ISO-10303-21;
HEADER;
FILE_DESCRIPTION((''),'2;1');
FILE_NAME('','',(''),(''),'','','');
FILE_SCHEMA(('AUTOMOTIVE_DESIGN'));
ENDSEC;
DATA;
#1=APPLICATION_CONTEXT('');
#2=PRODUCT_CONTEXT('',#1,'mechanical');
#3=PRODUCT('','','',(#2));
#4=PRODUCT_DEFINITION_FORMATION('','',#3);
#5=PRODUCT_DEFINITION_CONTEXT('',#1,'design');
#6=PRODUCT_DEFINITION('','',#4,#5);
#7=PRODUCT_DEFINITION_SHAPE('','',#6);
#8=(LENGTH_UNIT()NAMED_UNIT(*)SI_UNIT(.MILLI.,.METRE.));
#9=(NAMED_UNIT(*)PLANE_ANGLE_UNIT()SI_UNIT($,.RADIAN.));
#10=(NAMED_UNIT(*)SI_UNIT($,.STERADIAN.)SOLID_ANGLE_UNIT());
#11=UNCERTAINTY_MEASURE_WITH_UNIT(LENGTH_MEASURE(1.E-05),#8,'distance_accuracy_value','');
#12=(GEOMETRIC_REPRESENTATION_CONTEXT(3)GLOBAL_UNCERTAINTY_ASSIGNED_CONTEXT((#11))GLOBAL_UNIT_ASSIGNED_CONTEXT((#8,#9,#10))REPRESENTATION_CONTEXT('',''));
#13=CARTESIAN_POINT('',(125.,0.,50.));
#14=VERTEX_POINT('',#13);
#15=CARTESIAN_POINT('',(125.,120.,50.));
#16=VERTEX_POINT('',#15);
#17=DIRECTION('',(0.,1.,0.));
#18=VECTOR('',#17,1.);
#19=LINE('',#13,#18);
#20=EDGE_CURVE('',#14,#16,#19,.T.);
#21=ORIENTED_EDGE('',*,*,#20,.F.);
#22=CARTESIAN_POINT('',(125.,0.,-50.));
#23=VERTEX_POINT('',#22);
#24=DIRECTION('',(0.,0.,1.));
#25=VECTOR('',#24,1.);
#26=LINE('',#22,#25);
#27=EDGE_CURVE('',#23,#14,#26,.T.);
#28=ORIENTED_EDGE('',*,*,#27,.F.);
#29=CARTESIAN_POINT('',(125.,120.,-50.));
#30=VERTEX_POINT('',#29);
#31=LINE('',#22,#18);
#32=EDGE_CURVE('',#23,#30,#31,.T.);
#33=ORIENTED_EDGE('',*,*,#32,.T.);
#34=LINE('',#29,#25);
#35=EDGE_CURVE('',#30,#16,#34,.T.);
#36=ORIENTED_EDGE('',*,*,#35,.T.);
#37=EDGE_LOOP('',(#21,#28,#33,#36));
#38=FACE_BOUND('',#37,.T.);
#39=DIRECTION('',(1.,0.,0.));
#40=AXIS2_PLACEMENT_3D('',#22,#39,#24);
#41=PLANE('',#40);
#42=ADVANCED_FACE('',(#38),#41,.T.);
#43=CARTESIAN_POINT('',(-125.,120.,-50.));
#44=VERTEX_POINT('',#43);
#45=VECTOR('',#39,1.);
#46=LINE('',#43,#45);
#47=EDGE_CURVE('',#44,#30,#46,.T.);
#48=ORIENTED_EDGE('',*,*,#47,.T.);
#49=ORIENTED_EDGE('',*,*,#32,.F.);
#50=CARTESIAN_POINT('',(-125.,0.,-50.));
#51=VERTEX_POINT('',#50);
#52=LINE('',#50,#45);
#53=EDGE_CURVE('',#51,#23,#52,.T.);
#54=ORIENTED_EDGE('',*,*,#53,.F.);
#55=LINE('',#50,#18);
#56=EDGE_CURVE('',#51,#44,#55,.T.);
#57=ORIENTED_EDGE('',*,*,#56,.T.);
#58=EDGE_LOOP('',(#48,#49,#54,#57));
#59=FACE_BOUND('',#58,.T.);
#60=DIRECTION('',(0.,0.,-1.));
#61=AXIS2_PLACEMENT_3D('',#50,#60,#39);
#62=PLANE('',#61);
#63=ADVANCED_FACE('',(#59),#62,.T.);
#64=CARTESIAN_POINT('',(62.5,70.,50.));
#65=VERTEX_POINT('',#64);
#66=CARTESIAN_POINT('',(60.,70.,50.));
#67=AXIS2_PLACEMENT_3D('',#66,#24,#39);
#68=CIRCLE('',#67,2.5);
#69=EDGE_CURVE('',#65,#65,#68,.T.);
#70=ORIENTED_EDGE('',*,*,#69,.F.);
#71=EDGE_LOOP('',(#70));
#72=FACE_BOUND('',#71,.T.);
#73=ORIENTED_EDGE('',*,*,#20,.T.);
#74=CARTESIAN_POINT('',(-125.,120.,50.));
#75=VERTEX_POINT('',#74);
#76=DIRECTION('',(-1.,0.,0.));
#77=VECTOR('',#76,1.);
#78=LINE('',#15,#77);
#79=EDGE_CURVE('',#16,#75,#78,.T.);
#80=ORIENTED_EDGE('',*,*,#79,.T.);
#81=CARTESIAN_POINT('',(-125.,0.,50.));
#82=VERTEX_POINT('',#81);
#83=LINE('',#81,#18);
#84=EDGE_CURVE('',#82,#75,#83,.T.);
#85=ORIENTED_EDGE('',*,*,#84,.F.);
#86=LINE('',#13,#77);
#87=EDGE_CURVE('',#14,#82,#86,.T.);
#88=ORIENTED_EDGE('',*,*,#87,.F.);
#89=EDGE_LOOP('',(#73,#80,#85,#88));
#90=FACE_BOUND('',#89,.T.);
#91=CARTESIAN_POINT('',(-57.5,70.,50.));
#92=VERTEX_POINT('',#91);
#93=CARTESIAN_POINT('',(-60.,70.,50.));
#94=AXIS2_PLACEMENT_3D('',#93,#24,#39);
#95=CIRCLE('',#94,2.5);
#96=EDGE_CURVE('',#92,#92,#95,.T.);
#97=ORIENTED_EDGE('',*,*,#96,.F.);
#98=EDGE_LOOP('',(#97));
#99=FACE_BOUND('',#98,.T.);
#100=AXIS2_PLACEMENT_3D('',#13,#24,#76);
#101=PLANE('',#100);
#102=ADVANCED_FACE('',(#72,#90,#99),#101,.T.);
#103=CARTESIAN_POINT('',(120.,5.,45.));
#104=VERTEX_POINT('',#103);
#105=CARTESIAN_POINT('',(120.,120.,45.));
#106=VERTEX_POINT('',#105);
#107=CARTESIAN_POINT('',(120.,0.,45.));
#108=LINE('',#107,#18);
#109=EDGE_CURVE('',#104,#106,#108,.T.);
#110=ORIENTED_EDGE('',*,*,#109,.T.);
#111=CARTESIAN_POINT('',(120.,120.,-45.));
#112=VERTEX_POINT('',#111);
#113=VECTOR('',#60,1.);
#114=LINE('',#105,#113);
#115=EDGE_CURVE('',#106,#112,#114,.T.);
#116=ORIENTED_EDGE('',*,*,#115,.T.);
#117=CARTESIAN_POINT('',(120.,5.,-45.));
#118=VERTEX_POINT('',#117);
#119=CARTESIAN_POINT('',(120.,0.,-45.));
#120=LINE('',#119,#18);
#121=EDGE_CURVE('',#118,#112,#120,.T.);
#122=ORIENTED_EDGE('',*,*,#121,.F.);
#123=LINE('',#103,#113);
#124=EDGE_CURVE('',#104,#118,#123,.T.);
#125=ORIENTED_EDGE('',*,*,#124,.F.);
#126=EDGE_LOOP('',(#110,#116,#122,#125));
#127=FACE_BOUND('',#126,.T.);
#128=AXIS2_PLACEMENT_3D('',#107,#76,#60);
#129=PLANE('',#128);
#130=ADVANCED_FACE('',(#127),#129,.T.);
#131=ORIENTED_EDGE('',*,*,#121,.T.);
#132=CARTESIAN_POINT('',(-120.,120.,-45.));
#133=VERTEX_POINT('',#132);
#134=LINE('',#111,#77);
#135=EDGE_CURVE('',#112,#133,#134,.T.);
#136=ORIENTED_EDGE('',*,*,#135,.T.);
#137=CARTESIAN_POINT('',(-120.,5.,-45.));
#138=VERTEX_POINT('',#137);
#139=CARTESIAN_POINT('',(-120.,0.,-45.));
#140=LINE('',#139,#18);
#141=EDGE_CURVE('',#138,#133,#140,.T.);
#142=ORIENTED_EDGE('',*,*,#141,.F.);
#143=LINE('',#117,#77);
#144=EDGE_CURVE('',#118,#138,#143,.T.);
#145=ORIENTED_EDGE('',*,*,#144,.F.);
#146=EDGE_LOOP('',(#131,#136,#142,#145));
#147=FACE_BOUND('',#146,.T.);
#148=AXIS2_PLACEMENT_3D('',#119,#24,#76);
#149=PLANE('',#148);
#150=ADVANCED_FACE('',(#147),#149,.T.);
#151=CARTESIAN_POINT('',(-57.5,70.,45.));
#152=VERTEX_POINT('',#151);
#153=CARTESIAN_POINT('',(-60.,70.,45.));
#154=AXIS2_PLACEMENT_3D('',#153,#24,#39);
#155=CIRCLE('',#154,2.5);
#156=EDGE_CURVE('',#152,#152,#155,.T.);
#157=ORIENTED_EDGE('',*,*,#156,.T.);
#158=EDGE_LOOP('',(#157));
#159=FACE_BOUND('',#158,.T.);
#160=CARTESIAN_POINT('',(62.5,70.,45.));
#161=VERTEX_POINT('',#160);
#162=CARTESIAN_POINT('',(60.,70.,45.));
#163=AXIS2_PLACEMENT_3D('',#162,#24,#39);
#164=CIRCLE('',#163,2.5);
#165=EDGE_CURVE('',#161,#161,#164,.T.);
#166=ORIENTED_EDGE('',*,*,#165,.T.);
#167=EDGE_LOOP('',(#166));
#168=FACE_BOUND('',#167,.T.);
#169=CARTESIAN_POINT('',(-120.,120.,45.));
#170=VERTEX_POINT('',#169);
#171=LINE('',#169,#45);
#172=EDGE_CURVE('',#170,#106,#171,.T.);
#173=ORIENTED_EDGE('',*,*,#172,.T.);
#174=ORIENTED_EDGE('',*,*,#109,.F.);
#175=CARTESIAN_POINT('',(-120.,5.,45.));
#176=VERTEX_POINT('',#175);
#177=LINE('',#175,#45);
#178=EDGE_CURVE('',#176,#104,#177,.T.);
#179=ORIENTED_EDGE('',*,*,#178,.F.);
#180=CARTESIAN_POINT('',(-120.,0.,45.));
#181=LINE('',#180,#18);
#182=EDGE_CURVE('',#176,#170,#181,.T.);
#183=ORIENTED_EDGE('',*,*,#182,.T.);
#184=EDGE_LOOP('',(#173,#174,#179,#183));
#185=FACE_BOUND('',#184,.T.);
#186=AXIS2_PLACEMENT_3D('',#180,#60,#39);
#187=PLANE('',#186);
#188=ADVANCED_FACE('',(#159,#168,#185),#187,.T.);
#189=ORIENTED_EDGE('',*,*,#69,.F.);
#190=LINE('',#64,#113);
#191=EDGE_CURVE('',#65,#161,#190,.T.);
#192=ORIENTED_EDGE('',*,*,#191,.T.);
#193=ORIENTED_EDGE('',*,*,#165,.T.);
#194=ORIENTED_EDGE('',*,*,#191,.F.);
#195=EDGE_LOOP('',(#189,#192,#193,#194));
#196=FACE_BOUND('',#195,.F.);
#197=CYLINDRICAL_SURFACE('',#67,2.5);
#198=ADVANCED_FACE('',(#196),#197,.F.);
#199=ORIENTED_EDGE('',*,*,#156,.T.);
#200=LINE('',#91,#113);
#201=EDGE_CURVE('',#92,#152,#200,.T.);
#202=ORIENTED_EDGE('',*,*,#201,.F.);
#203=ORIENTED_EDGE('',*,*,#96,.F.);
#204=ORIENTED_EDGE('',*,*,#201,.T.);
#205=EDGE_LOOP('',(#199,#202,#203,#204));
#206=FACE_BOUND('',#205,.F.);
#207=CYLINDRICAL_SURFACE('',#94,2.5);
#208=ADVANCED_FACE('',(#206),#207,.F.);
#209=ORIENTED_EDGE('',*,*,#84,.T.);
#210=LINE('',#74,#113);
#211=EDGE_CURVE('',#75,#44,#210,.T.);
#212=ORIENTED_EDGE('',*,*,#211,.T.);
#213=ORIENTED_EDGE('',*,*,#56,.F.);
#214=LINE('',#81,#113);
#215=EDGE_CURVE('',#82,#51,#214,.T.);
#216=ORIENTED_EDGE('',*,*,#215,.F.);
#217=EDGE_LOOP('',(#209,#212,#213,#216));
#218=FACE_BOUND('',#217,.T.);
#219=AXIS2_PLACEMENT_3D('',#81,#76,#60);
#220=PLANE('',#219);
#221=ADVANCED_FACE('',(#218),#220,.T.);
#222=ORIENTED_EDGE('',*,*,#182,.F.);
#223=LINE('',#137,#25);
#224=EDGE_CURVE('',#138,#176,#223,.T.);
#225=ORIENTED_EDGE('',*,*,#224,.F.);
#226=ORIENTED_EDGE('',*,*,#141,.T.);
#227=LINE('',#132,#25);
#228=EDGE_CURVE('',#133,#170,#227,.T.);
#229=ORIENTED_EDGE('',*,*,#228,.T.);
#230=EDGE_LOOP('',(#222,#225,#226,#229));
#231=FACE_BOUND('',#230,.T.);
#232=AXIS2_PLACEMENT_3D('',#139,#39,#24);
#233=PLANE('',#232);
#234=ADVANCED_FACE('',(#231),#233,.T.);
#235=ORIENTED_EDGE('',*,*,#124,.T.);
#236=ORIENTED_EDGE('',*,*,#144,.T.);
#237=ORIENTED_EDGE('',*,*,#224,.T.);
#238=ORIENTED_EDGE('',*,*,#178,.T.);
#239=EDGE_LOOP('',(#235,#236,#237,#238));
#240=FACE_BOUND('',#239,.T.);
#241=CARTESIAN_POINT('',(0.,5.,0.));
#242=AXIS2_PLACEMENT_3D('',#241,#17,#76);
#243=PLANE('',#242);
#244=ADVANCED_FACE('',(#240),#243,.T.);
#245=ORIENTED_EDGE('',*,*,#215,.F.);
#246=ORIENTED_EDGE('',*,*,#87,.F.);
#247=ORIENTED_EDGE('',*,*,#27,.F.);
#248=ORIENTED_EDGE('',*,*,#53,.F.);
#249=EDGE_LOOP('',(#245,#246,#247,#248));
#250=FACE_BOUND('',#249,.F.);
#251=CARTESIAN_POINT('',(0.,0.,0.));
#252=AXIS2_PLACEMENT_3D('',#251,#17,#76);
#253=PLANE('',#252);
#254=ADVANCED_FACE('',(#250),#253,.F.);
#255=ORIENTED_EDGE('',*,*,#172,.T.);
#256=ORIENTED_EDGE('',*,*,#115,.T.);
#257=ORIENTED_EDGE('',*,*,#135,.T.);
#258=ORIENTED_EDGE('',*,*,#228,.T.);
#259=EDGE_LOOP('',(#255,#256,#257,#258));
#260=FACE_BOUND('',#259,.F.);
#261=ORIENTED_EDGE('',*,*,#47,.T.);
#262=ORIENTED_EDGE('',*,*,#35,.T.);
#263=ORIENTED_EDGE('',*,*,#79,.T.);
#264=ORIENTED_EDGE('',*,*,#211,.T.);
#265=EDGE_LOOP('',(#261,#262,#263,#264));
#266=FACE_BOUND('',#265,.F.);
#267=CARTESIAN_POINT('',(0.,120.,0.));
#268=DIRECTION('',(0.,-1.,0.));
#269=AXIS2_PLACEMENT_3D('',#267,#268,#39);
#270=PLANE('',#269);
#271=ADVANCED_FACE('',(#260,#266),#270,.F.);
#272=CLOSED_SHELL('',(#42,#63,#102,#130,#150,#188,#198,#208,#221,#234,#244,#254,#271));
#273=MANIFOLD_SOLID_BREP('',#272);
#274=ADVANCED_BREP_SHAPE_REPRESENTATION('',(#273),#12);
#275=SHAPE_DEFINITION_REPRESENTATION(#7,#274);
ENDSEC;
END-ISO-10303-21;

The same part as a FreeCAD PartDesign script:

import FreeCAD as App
import Part
import Sketcher

V = App.Vector


def add_polygon(sketch, points):
    """Adds a closed chain of lines whose ends are joined by coincident constraints."""
    first, n = sketch.GeometryCount, len(points)
    for a, b in zip(points, points[1:] + points[:1]):
        sketch.addGeometry(Part.LineSegment(App.Vector(*a, 0), App.Vector(*b, 0)), False)
    for i in range(n):
        sketch.addConstraint(Sketcher.Constraint("Coincident", first + i, 2, first + (i + 1) % n, 1))

doc = App.newDocument("Part")
params = doc.addObject("Spreadsheet::Sheet", "Params")
for row, (alias, value) in enumerate([
    ("sketch1_width", "240 mm"),
    ("sketch1_height", "90 mm"),
    ("pad1_length", "5 mm"),
    ("sketch2_width", "250 mm"),
    ("sketch2_height", "100 mm"),
    ("pad2_length", "120 mm"),
    ("sketch3_diameter", "5 mm"),
    ("pocket1_length", "5 mm"),
], start=1):
    params.set(f"A{row}", alias)
    params.set(f"B{row}", "=" + value)
    params.setAlias(f"B{row}", alias)

body = doc.addObject("PartDesign::Body", "Body")

# Sketch on XZ plane
sketch1 = body.newObject("Sketcher::SketchObject", "Sketch")
sketch1.AttachmentSupport = (doc.getObject("XZ_Plane"), [""])
sketch1.MapMode = "FlatFace"
add_polygon(sketch1, [(-120, -45), (-120, 45), (120, 45), (120, -45)])  # lines 0-3
sketch1.addConstraint(Sketcher.Constraint("Vertical", 0))
sketch1.addConstraint(Sketcher.Constraint("Horizontal", 1))
sketch1.addConstraint(Sketcher.Constraint("Vertical", 2))
sketch1.addConstraint(Sketcher.Constraint("Horizontal", 3))
sketch1.addConstraint(Sketcher.Constraint("Symmetric", 0, 2, 2, 2, -1, 1))
sketch1.addConstraint(Sketcher.Constraint("DistanceX", 1, 1, 1, 2, 240.0))
sketch1.addConstraint(Sketcher.Constraint("DistanceY", 0, 1, 0, 2, 90.0))
sketch1.setExpression("Constraints[9]", "Params.sketch1_width")
sketch1.setExpression("Constraints[10]", "Params.sketch1_height")
pad1 = body.newObject("PartDesign::Pad", "Pad")
pad1.Profile = sketch1
pad1.setExpression("Length", "Params.pad1_length")
pad1.Reversed = True

# Sketch on XZ plane
sketch2 = body.newObject("Sketcher::SketchObject", "Sketch001")
sketch2.AttachmentSupport = (doc.getObject("XZ_Plane"), [""])
sketch2.MapMode = "FlatFace"
add_polygon(sketch2, [(-125, 50), (-125, -50), (125, -50), (125, 50)])  # lines 0-3
add_polygon(sketch2, [(120, -45), (-120, -45), (-120, 45), (120, 45)])  # lines 4-7
sketch2.addConstraint(Sketcher.Constraint("Vertical", 0))
sketch2.addConstraint(Sketcher.Constraint("Horizontal", 1))
sketch2.addConstraint(Sketcher.Constraint("Vertical", 2))
sketch2.addConstraint(Sketcher.Constraint("Horizontal", 3))
sketch2.addConstraint(Sketcher.Constraint("Horizontal", 4))
sketch2.addConstraint(Sketcher.Constraint("Vertical", 5))
sketch2.addConstraint(Sketcher.Constraint("Horizontal", 6))
sketch2.addConstraint(Sketcher.Constraint("Vertical", 7))
sketch2.addConstraint(Sketcher.Constraint("Symmetric", 0, 2, 2, 2, -1, 1))
sketch2.addConstraint(Sketcher.Constraint("Symmetric", 4, 2, 6, 2, -1, 1))
sketch2.addConstraint(Sketcher.Constraint("DistanceX", 0, 2, 4, 2, 5.0))
sketch2.addConstraint(Sketcher.Constraint("DistanceY", 0, 2, 4, 2, 5.0))
sketch2.addConstraint(Sketcher.Constraint("DistanceX", 1, 1, 1, 2, 250.0))
sketch2.addConstraint(Sketcher.Constraint("DistanceY", 0, 2, 0, 1, 100.0))
sketch2.setExpression("Constraints[20]", "Params.sketch2_width")
sketch2.setExpression("Constraints[21]", "Params.sketch2_height")
pad2 = body.newObject("PartDesign::Pad", "Pad001")
pad2.Profile = sketch2
pad2.setExpression("Length", "Params.pad2_length")
pad2.Reversed = True

# Sketch on XY plane
sketch3 = body.newObject("Sketcher::SketchObject", "Sketch002")
sketch3.AttachmentSupport = (doc.getObject("XY_Plane"), [""])
sketch3.MapMode = "FlatFace"
sketch3.AttachmentOffset = App.Placement(V(0, 0, 50), App.Rotation())
sketch3.addGeometry(Part.Circle(V(-60, 70, 0), V(0, 0, 1), 2.5), False)
sketch3.addGeometry(Part.Circle(V(60, 70, 0), V(0, 0, 1), 2.5), False)
sketch3.addConstraint(Sketcher.Constraint("Equal", 0, 1))
sketch3.addConstraint(Sketcher.Constraint("Symmetric", 0, 3, 1, 3, -2))
sketch3.addConstraint(Sketcher.Constraint("Diameter", 0, 5.0))
sketch3.addConstraint(Sketcher.Constraint("DistanceY", -1, 1, 0, 3, 70.0))
sketch3.addConstraint(Sketcher.Constraint("DistanceX", 0, 3, 1, 3, 120.0))
sketch3.setExpression("Constraints[2]", "Params.sketch3_diameter")
pocket1 = body.newObject("PartDesign::Pocket", "Pocket")
pocket1.Profile = sketch3
pocket1.setExpression("Length", "Params.pocket1_length")

doc.recompute()
